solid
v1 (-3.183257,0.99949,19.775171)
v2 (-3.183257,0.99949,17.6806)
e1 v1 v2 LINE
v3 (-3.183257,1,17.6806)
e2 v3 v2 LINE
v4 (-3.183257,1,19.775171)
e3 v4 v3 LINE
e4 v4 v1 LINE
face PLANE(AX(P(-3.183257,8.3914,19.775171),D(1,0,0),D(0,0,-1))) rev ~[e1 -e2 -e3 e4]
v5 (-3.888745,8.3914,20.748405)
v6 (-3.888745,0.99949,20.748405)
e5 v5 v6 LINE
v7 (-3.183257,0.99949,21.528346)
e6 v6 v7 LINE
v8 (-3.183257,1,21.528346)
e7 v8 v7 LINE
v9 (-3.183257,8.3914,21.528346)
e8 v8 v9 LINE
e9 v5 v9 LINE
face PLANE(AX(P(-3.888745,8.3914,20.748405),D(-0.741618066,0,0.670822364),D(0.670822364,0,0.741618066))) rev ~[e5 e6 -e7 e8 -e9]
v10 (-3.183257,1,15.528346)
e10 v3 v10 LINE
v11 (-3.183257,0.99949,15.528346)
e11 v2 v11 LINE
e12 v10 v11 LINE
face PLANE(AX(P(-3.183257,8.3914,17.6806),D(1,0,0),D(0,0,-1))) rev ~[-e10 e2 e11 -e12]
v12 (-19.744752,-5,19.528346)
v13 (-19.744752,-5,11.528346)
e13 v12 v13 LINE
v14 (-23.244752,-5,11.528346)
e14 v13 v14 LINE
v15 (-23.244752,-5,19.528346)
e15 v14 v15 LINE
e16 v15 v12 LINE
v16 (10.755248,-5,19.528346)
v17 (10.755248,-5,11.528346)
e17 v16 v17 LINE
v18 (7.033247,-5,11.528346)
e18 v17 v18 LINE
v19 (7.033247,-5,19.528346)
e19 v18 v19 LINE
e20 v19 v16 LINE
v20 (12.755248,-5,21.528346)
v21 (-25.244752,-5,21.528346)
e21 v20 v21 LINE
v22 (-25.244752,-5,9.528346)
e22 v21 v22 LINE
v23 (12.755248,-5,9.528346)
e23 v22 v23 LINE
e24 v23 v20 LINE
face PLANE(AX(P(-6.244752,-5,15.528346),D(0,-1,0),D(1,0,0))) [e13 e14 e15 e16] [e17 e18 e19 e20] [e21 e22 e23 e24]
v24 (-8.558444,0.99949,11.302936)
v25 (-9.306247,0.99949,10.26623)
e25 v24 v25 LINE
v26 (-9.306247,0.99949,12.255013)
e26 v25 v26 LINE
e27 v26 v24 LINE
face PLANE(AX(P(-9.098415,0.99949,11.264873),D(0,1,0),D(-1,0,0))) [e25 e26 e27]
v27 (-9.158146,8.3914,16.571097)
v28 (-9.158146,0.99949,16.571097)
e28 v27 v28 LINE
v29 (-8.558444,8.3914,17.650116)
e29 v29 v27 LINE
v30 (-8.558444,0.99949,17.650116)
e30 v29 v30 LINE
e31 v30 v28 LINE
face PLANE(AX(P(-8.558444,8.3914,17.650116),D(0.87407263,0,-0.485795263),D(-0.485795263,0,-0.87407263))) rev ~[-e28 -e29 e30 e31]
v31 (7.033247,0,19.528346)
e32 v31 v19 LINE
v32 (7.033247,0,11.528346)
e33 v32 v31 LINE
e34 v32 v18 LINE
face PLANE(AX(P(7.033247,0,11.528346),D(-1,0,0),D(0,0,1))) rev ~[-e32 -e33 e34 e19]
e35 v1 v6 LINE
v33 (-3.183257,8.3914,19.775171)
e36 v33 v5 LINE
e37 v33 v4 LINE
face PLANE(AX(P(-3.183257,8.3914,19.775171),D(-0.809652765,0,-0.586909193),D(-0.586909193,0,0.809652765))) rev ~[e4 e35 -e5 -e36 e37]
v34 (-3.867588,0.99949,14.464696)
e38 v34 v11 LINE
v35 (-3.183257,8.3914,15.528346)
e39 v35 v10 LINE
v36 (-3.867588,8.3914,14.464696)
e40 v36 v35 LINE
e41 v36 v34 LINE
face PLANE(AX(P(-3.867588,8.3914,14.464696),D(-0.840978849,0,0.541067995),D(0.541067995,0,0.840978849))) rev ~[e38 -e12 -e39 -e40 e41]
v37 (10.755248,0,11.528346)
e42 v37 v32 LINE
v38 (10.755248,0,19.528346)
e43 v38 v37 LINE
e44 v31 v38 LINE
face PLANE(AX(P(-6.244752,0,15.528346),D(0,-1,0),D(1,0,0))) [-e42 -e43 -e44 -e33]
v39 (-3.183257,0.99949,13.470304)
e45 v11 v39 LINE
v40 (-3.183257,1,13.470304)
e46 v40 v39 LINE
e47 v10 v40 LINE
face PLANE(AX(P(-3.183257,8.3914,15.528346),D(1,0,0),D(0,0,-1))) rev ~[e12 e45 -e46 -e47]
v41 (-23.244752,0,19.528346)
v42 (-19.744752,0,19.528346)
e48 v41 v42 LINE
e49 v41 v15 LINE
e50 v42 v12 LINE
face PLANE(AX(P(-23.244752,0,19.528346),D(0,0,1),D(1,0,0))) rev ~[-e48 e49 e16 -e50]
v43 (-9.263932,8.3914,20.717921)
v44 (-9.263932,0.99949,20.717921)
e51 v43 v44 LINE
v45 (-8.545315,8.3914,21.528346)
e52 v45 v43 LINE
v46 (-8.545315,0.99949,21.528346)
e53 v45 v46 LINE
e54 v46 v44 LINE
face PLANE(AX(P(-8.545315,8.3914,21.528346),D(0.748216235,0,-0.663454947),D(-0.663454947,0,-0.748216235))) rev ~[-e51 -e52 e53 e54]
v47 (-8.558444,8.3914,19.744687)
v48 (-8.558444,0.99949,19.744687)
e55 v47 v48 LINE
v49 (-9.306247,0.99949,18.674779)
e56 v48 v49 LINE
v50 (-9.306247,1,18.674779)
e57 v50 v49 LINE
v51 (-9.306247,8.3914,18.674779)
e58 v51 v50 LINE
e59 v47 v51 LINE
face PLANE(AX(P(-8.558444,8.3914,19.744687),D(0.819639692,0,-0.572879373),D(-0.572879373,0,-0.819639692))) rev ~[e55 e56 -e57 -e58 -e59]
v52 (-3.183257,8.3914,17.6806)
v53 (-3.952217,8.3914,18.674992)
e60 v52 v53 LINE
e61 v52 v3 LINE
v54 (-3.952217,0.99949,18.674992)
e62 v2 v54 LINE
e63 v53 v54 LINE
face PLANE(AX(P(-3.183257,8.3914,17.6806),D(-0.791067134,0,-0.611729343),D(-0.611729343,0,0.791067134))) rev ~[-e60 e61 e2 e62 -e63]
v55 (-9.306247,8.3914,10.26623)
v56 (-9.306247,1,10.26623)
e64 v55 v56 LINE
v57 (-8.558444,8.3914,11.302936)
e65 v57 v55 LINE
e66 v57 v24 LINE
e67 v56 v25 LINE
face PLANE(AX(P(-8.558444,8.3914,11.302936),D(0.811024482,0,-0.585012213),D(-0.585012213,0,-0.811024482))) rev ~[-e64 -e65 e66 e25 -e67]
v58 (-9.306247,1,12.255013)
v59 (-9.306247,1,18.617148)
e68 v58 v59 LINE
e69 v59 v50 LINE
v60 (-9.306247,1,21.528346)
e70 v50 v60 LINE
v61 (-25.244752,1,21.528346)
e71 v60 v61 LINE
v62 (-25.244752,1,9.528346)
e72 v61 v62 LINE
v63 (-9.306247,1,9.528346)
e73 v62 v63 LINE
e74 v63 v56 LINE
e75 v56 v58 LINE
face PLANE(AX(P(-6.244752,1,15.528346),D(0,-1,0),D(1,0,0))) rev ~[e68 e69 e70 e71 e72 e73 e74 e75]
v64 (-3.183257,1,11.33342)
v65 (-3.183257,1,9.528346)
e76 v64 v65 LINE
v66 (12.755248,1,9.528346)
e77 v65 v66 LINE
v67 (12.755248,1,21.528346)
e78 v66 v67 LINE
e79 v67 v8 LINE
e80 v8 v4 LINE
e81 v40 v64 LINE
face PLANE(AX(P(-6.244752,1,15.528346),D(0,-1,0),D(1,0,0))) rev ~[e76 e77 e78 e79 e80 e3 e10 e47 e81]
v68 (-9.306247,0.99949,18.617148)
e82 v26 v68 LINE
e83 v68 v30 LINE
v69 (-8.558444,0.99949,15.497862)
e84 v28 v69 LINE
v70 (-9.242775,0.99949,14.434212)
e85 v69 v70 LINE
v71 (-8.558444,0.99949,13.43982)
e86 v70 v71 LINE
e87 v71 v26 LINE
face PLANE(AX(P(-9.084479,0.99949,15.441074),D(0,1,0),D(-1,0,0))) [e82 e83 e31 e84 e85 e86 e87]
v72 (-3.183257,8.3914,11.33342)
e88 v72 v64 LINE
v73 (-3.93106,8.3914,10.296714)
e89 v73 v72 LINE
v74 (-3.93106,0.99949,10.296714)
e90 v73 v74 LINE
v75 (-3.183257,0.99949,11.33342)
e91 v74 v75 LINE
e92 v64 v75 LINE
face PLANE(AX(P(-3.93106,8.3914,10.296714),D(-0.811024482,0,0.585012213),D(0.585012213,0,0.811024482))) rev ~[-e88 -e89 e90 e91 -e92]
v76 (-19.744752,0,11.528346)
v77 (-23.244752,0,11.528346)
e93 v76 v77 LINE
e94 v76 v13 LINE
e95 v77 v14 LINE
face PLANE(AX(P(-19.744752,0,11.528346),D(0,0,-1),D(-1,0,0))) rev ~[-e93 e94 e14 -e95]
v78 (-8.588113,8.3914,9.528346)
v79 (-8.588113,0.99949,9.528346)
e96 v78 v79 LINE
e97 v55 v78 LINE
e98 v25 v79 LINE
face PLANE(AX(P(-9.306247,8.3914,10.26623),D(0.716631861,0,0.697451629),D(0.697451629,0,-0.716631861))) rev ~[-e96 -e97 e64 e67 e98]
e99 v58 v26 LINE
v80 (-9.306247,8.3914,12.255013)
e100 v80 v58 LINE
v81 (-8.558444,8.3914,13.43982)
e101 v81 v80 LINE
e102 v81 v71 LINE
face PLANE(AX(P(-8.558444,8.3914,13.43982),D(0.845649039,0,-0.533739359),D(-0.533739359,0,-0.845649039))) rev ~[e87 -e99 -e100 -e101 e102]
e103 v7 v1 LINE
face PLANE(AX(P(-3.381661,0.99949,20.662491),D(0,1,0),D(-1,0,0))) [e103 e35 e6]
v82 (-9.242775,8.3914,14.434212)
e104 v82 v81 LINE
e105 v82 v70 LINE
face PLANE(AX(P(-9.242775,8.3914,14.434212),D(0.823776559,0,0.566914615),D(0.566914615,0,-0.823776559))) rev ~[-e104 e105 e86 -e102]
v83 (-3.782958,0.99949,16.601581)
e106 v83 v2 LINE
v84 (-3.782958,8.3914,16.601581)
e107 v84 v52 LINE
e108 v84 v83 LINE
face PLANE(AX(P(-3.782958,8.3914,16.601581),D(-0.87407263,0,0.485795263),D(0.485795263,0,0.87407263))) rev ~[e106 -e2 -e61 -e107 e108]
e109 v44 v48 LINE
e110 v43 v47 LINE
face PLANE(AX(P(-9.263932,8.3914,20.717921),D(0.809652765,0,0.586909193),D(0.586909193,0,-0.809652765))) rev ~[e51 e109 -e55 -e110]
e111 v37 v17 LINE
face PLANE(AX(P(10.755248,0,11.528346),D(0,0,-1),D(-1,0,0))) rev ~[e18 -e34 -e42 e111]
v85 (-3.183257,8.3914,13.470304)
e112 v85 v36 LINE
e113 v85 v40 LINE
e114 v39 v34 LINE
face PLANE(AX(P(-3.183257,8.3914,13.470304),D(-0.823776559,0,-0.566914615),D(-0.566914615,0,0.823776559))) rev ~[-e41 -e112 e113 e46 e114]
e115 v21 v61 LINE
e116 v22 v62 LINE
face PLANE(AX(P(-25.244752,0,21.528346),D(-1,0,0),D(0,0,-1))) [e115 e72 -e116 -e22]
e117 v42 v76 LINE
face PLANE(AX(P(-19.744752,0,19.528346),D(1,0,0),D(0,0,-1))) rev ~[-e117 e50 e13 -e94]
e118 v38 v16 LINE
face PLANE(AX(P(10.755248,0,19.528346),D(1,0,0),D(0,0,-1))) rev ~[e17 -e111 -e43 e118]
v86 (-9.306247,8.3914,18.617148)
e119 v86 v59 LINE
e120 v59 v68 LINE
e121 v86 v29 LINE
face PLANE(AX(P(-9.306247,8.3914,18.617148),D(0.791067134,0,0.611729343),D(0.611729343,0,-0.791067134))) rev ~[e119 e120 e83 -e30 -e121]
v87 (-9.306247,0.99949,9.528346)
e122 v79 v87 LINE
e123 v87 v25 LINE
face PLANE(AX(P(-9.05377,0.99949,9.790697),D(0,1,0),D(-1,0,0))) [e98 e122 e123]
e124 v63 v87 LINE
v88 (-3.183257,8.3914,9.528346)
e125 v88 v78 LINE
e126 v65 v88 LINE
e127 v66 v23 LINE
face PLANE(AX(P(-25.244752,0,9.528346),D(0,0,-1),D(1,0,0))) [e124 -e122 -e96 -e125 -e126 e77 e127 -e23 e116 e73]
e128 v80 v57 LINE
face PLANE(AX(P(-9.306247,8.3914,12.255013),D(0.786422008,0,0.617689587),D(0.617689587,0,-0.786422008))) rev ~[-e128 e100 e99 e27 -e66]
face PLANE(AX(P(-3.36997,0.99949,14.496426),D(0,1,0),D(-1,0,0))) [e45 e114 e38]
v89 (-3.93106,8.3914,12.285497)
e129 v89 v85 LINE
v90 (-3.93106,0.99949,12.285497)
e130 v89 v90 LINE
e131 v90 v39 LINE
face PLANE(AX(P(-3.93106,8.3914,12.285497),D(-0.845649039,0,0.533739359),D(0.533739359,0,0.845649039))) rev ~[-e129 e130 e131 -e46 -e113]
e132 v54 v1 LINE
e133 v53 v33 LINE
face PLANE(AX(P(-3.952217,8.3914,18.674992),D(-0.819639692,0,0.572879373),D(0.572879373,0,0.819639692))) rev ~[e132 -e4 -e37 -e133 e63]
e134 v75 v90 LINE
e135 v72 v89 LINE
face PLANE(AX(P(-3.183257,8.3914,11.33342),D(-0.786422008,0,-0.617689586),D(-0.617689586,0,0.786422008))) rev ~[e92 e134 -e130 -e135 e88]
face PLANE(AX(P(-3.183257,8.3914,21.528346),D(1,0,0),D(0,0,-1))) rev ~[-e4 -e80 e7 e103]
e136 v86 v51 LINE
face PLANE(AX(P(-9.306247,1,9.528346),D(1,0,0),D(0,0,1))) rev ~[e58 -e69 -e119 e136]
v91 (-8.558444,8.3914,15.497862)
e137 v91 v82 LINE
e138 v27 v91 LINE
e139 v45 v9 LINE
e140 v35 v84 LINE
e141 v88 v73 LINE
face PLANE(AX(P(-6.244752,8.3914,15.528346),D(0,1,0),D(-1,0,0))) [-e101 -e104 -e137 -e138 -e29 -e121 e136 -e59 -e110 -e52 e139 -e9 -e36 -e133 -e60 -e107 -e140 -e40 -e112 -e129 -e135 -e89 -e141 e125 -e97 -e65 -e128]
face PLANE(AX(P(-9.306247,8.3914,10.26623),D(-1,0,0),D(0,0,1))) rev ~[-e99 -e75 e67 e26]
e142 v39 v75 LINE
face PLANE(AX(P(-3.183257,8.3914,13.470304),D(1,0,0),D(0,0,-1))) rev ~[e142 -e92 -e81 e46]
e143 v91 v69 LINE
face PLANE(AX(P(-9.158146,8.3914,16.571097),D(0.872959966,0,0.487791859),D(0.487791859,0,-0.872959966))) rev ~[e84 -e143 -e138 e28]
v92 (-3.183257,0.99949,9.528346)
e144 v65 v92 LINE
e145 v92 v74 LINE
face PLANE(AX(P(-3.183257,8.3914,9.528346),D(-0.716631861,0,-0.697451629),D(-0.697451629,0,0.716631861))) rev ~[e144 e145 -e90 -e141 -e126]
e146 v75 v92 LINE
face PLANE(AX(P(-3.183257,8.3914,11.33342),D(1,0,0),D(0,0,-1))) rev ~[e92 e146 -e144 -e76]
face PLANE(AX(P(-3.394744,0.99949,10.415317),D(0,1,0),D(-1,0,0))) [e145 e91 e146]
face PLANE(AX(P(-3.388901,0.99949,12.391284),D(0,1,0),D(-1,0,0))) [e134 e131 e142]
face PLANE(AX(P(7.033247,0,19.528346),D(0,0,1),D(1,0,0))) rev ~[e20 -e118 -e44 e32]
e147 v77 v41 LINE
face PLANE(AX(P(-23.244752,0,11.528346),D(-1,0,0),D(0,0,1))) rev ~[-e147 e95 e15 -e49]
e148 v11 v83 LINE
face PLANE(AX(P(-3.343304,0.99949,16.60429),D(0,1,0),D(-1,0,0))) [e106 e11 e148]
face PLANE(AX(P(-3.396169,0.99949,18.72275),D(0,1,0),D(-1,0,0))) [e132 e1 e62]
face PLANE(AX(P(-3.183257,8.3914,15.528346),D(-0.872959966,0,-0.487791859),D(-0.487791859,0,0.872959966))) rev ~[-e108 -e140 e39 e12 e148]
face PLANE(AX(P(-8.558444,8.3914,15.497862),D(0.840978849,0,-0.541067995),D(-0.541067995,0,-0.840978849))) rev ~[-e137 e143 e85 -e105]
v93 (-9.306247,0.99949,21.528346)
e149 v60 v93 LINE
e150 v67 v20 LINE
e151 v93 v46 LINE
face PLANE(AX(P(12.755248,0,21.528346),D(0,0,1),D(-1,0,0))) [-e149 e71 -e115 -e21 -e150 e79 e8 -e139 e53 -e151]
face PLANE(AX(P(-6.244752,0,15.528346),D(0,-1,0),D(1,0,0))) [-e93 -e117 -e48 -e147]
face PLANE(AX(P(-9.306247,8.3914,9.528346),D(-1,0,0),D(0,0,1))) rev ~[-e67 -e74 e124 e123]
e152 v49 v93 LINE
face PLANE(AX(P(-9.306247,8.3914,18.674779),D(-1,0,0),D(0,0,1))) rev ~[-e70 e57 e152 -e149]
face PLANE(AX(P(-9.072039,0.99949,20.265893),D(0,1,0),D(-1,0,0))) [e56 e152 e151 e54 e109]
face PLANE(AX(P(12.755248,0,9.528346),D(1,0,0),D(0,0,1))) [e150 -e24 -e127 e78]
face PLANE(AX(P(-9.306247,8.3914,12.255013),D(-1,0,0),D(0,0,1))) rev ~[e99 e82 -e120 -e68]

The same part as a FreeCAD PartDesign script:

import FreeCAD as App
import Part
import Sketcher


def add_polygon(sketch, points):
    """Adds a closed chain of lines whose ends are joined by coincident constraints."""
    first, n = sketch.GeometryCount, len(points)
    for a, b in zip(points, points[1:] + points[:1]):
        sketch.addGeometry(Part.LineSegment(App.Vector(*a, 0), App.Vector(*b, 0)), False)
    for i in range(n):
        sketch.addConstraint(Sketcher.Constraint("Coincident", first + i, 2, first + (i + 1) % n, 1))

doc = App.newDocument("Part")
body = doc.addObject("PartDesign::Body", "Body")

sketch1 = body.newObject("Sketcher::SketchObject", "Sketch")
sketch1.AttachmentSupport = (doc.getObject("XZ_Plane"), [""])
sketch1.MapMode = "FlatFace"
add_polygon(sketch1, [(-25.2, 9.5), (12.8, 9.5), (12.8, 21.5), (-25.2, 21.5)])
add_polygon(sketch1, [(10.8, 11.5), (7, 11.5), (7, 19.5), (10.8, 19.5)])
add_polygon(sketch1, [(-19.7, 11.5), (-23.2, 11.5), (-23.2, 19.5), (-19.7, 19.5)])
sketch1.addConstraint(Sketcher.Constraint("Horizontal", 0))
sketch1.addConstraint(Sketcher.Constraint("Vertical", 1))
sketch1.addConstraint(Sketcher.Constraint("Horizontal", 2))
sketch1.addConstraint(Sketcher.Constraint("Vertical", 3))
sketch1.addConstraint(Sketcher.Constraint("Horizontal", 4))
sketch1.addConstraint(Sketcher.Constraint("Vertical", 5))
sketch1.addConstraint(Sketcher.Constraint("Horizontal", 6))
sketch1.addConstraint(Sketcher.Constraint("Vertical", 7))
sketch1.addConstraint(Sketcher.Constraint("Horizontal", 8))
sketch1.addConstraint(Sketcher.Constraint("Vertical", 9))
sketch1.addConstraint(Sketcher.Constraint("Horizontal", 10))
sketch1.addConstraint(Sketcher.Constraint("Vertical", 11))
sketch1.addConstraint(Sketcher.Constraint("Horizontal", 7, 2, 8, 2))
sketch1.addConstraint(Sketcher.Constraint("Horizontal", 6, 2, 9, 2))
sketch1.addConstraint(Sketcher.Constraint("DistanceX", 0, 1, 0, 2, 38.0))
sketch1.addConstraint(Sketcher.Constraint("DistanceY", 1, 1, 1, 2, 12.0))
sketch1.addConstraint(Sketcher.Constraint("DistanceY", 5, 1, 5, 2, 8.0))
sketch1.addConstraint(Sketcher.Constraint("DistanceX", 8, 2, 8, 1, 3.5))
sketch1.addConstraint(Sketcher.Constraint("DistanceY", 0, 2, 4, 2, 2.0))
sketch1.addConstraint(Sketcher.Constraint("DistanceX", 6, 2, 1, 2, 2.0))
sketch1.addConstraint(Sketcher.Constraint("DistanceX", 3, 2, 8, 2, 2.0))
sketch1.addConstraint(Sketcher.Constraint("DistanceX", 4, 2, 4, 1, 3.722001))
sketch1.addConstraint(Sketcher.Constraint("DistanceX", -1, 1, 0, 2, 12.755248))
sketch1.addConstraint(Sketcher.Constraint("DistanceY", -1, 1, 0, 2, 9.528346))
pad1 = body.newObject("PartDesign::Pad", "Pad")
pad1.Profile = sketch1
pad1.Length = 5

sketch2 = body.newObject("Sketcher::SketchObject", "Sketch001")
sketch2.AttachmentSupport = (doc.getObject("XZ_Plane"), [""])
sketch2.MapMode = "FlatFace"
add_polygon(sketch2, [(-25, 10), (13, 10), (13, 22), (-25, 22)])
sketch2.addConstraint(Sketcher.Constraint("Horizontal", 0))
sketch2.addConstraint(Sketcher.Constraint("Vertical", 1))
sketch2.addConstraint(Sketcher.Constraint("Horizontal", 2))
sketch2.addConstraint(Sketcher.Constraint("Vertical", 3))
sketch2.addConstraint(Sketcher.Constraint("DistanceX", 0, 1, 0, 2, 38.0))
sketch2.addConstraint(Sketcher.Constraint("DistanceY", 1, 1, 1, 2, 12.0))
sketch2.addConstraint(Sketcher.Constraint("DistanceX", -1, 1, 0, 2, 12.755248))
sketch2.addConstraint(Sketcher.Constraint("DistanceY", -1, 1, 0, 2, 9.528346))
pad2 = body.newObject("PartDesign::Pad", "Pad001")
pad2.Profile = sketch2
pad2.Length = 1
pad2.Reversed = True

sketch3 = body.newObject("Sketcher::SketchObject", "Sketch002")
sketch3.AttachmentSupport = (doc.getObject("XZ_Plane"), [""])
sketch3.MapMode = "FlatFace"
sketch3.AttachmentOffset = App.Placement(App.Vector(0, 0, -1), App.Rotation())
add_polygon(sketch3, [(-9, 22), (-3, 22), (-3, 10), (-9, 10)])
sketch3.addConstraint(Sketcher.Constraint("Horizontal", 0))
sketch3.addConstraint(Sketcher.Constraint("Vertical", 1))
sketch3.addConstraint(Sketcher.Constraint("Horizontal", 2))
sketch3.addConstraint(Sketcher.Constraint("Vertical", 3))
sketch3.addConstraint(Sketcher.Constraint("DistanceY", 1, 2, 1, 1, 12.0))
sketch3.addConstraint(Sketcher.Constraint("DistanceX", 0, 1, 0, 2, 6.122989))
sketch3.addConstraint(Sketcher.Constraint("DistanceX", 0, 2, -1, 1, 3.183257))
sketch3.addConstraint(Sketcher.Constraint("DistanceY", -1, 1, 0, 2, 21.528346))
pad3 = body.newObject("PartDesign::Pad", "Pad002")
pad3.Profile = sketch3
pad3.Length = 7.3914
pad3.Reversed = True

sketch4 = body.newObject("Sketcher::SketchObject", "Sketch003")
sketch4.AttachmentSupport = (doc.getObject("XZ_Plane"), [""])
sketch4.MapMode = "FlatFace"
sketch4.AttachmentOffset = App.Placement(App.Vector(0, 0, -8.3914), App.Rotation())
add_polygon(sketch4, [(-9.3, 21.5), (-8.5, 21.5), (-9.3, 20.7), (-8.6, 19.7), (-9.3, 18.7)])
add_polygon(sketch4, [(-9.3, 12.3), (-9.3, 18.6), (-8.6, 17.7), (-9.2, 16.6), (-8.6, 15.5), (-9.2, 14.4), (-8.6, 13.4)])
add_polygon(sketch4, [(-9.3, 10.3), (-9.3, 12.3), (-8.6, 11.3)])
add_polygon(sketch4, [(-9.3, 9.5), (-9.3, 10.3), (-8.6, 9.5)])
add_polygon(sketch4, [(-3.9, 10.3), (-3.2, 11.3), (-3.2, 9.5)])
add_polygon(sketch4, [(-3.9, 12.3), (-3.2, 13.5), (-3.2, 11.3)])
add_polygon(sketch4, [(-3.9, 14.5), (-3.2, 15.5), (-3.2, 13.5)])
add_polygon(sketch4, [(-3.8, 16.6), (-3.2, 17.7), (-3.2, 15.5)])
add_polygon(sketch4, [(-4, 18.7), (-3.2, 19.8), (-3.2, 17.7)])
add_polygon(sketch4, [(-3.9, 20.7), (-3.2, 21.5), (-3.2, 19.8)])
sketch4.addConstraint(Sketcher.Constraint("Horizontal", 0))
sketch4.addConstraint(Sketcher.Constraint("Vertical", 4))
sketch4.addConstraint(Sketcher.Constraint("Vertical", 5))
sketch4.addConstraint(Sketcher.Constraint("Vertical", 12))
sketch4.addConstraint(Sketcher.Constraint("Vertical", 15))
sketch4.addConstraint(Sketcher.Constraint("Horizontal", 17))
sketch4.addConstraint(Sketcher.Constraint("Vertical", 19))
sketch4.addConstraint(Sketcher.Constraint("Vertical", 22))
sketch4.addConstraint(Sketcher.Constraint("Vertical", 25))
sketch4.addConstraint(Sketcher.Constraint("Vertical", 28))
sketch4.addConstraint(Sketcher.Constraint("Vertical", 31))
sketch4.addConstraint(Sketcher.Constraint("Vertical", 34))
sketch4.addConstraint(Sketcher.Constraint("Coincident", 12, 2, 11, 2))
sketch4.addConstraint(Sketcher.Constraint("Coincident", 15, 2, 14, 2))
sketch4.addConstraint(Sketcher.Constraint("Coincident", 22, 2, 18, 2))
sketch4.addConstraint(Sketcher.Constraint("Coincident", 25, 2, 21, 2))
sketch4.addConstraint(Sketcher.Constraint("Coincident", 28, 2, 24, 2))
sketch4.addConstraint(Sketcher.Constraint("Coincident", 31, 2, 27, 2))
sketch4.addConstraint(Sketcher.Constraint("Coincident", 34, 2, 30, 2))
sketch4.addConstraint(Sketcher.Constraint("Parallel", 14, 18))
sketch4.addConstraint(Sketcher.Constraint("Parallel", 16, 20))
sketch4.addConstraint(Sketcher.Constraint("Parallel", 11, 21))
sketch4.addConstraint(Sketcher.Constraint("Parallel", 13, 23))
sketch4.addConstraint(Sketcher.Constraint("Parallel", 9, 24))
sketch4.addConstraint(Sketcher.Constraint("Parallel", 10, 26))
sketch4.addConstraint(Sketcher.Constraint("Parallel", 7, 27))
sketch4.addConstraint(Sketcher.Constraint("Parallel", 8, 29))
sketch4.addConstraint(Sketcher.Constraint("Parallel", 3, 30))
sketch4.addConstraint(Sketcher.Constraint("Parallel", 6, 32))
sketch4.addConstraint(Sketcher.Constraint("Parallel", 2, 35))
sketch4.addConstraint(Sketcher.Constraint("Horizontal", 17, 2, 19, 2))
sketch4.addConstraint(Sketcher.Constraint("Horizontal", 4, 2, 33, 2))
sketch4.addConstraint(Sketcher.Constraint("Vertical", 4, 2, 5, 2))
sketch4.addConstraint(Sketcher.Constraint("Vertical", 2, 2, 6, 2))
sketch4.addConstraint(Sketcher.Constraint("Vertical", 6, 2, 8, 2))
sketch4.addConstraint(Sketcher.Constraint("Vertical", 8, 2, 10, 2))
sketch4.addConstraint(Sketcher.Constraint("Vertical", 10, 2, 13, 2))
sketch4.addConstraint(Sketcher.Constraint("Vertical", 20, 2, 23, 2))
sketch4.addConstraint(Sketcher.Constraint("Equal", 14, 18))
sketch4.addConstraint(Sketcher.Constraint("Equal", 9, 24))
sketch4.addConstraint(Sketcher.Constraint("Equal", 7, 27))
sketch4.addConstraint(Sketcher.Constraint("Equal", 2, 35))
sketch4.addConstraint(Sketcher.Constraint("DistanceX", 0, 1, 0, 2, 0.760932))
sketch4.addConstraint(Sketcher.Constraint("DistanceY", 31, 2, 31, 1, 2.094571))
sketch4.addConstraint(Sketcher.Constraint("DistanceY", -1, 1, 27, 2, 17.6806))
sketch4.addConstraint(Sketcher.Constraint("DistanceY", 5, 2, 4, 2, 2.911198))
sketch4.addConstraint(Sketcher.Constraint("DistanceX", 7, 2, 6, 2, 0.599701))
sketch4.addConstraint(Sketcher.Constraint("DistanceX", 5, 2, 7, 2, 0.148101))
sketch4.addConstraint(Sketcher.Constraint("DistanceY", 11, 2, 9, 2, 2.179199))
sketch4.addConstraint(Sketcher.Constraint("DistanceY", 18, 2, 10, 2, 2.1064))
sketch4.addConstraint(Sketcher.Constraint("Distance", 2, 1.202039))
sketch4.addConstraint(Sketcher.Constraint("Distance", 3, 1.30534))
sketch4.addConstraint(Sketcher.Constraint("Distance", 6, 1.22244))
sketch4.addConstraint(Sketcher.Constraint("Distance", 8, 1.22942))
sketch4.addConstraint(Sketcher.Constraint("DistanceX", 17, 2, 17, 1, 0.718134))
sketch4.addConstraint(Sketcher.Constraint("DistanceY", 4, 1, 4, 2, 2.853568))
sketch4.addConstraint(Sketcher.Constraint("DistanceY", 5, 1, 5, 2, 6.362135))
sketch4.addConstraint(Sketcher.Constraint("DistanceY", 12, 1, 12, 2, 1.988783))
sketch4.addConstraint(Sketcher.Constraint("DistanceY", 15, 1, 15, 2, 0.737883))
sketch4.addConstraint(Sketcher.Constraint("DistanceY", 19, 2, 19, 1, 1.805073))
sketch4.addConstraint(Sketcher.Constraint("DistanceY", 25, 2, 25, 1, 2.058042))
sketch4.addConstraint(Sketcher.Constraint("DistanceX", 1, 2, -1, 1, 9.263932))
sketch4.addConstraint(Sketcher.Constraint("DistanceY", -1, 1, 1, 2, 20.717921))
sketch4.addConstraint(Sketcher.Constraint("DistanceX", 20, 2, -1, 1, 3.93106))
sketch4.addConstraint(Sketcher.Constraint("DistanceX", 9, 2, 8, 2, 0.68433))
pocket1 = body.newObject("PartDesign::Pocket", "Pocket")
pocket1.Profile = sketch4
pocket1.Length = 7.39191
pocket1.Reversed = True

doc.recompute()
